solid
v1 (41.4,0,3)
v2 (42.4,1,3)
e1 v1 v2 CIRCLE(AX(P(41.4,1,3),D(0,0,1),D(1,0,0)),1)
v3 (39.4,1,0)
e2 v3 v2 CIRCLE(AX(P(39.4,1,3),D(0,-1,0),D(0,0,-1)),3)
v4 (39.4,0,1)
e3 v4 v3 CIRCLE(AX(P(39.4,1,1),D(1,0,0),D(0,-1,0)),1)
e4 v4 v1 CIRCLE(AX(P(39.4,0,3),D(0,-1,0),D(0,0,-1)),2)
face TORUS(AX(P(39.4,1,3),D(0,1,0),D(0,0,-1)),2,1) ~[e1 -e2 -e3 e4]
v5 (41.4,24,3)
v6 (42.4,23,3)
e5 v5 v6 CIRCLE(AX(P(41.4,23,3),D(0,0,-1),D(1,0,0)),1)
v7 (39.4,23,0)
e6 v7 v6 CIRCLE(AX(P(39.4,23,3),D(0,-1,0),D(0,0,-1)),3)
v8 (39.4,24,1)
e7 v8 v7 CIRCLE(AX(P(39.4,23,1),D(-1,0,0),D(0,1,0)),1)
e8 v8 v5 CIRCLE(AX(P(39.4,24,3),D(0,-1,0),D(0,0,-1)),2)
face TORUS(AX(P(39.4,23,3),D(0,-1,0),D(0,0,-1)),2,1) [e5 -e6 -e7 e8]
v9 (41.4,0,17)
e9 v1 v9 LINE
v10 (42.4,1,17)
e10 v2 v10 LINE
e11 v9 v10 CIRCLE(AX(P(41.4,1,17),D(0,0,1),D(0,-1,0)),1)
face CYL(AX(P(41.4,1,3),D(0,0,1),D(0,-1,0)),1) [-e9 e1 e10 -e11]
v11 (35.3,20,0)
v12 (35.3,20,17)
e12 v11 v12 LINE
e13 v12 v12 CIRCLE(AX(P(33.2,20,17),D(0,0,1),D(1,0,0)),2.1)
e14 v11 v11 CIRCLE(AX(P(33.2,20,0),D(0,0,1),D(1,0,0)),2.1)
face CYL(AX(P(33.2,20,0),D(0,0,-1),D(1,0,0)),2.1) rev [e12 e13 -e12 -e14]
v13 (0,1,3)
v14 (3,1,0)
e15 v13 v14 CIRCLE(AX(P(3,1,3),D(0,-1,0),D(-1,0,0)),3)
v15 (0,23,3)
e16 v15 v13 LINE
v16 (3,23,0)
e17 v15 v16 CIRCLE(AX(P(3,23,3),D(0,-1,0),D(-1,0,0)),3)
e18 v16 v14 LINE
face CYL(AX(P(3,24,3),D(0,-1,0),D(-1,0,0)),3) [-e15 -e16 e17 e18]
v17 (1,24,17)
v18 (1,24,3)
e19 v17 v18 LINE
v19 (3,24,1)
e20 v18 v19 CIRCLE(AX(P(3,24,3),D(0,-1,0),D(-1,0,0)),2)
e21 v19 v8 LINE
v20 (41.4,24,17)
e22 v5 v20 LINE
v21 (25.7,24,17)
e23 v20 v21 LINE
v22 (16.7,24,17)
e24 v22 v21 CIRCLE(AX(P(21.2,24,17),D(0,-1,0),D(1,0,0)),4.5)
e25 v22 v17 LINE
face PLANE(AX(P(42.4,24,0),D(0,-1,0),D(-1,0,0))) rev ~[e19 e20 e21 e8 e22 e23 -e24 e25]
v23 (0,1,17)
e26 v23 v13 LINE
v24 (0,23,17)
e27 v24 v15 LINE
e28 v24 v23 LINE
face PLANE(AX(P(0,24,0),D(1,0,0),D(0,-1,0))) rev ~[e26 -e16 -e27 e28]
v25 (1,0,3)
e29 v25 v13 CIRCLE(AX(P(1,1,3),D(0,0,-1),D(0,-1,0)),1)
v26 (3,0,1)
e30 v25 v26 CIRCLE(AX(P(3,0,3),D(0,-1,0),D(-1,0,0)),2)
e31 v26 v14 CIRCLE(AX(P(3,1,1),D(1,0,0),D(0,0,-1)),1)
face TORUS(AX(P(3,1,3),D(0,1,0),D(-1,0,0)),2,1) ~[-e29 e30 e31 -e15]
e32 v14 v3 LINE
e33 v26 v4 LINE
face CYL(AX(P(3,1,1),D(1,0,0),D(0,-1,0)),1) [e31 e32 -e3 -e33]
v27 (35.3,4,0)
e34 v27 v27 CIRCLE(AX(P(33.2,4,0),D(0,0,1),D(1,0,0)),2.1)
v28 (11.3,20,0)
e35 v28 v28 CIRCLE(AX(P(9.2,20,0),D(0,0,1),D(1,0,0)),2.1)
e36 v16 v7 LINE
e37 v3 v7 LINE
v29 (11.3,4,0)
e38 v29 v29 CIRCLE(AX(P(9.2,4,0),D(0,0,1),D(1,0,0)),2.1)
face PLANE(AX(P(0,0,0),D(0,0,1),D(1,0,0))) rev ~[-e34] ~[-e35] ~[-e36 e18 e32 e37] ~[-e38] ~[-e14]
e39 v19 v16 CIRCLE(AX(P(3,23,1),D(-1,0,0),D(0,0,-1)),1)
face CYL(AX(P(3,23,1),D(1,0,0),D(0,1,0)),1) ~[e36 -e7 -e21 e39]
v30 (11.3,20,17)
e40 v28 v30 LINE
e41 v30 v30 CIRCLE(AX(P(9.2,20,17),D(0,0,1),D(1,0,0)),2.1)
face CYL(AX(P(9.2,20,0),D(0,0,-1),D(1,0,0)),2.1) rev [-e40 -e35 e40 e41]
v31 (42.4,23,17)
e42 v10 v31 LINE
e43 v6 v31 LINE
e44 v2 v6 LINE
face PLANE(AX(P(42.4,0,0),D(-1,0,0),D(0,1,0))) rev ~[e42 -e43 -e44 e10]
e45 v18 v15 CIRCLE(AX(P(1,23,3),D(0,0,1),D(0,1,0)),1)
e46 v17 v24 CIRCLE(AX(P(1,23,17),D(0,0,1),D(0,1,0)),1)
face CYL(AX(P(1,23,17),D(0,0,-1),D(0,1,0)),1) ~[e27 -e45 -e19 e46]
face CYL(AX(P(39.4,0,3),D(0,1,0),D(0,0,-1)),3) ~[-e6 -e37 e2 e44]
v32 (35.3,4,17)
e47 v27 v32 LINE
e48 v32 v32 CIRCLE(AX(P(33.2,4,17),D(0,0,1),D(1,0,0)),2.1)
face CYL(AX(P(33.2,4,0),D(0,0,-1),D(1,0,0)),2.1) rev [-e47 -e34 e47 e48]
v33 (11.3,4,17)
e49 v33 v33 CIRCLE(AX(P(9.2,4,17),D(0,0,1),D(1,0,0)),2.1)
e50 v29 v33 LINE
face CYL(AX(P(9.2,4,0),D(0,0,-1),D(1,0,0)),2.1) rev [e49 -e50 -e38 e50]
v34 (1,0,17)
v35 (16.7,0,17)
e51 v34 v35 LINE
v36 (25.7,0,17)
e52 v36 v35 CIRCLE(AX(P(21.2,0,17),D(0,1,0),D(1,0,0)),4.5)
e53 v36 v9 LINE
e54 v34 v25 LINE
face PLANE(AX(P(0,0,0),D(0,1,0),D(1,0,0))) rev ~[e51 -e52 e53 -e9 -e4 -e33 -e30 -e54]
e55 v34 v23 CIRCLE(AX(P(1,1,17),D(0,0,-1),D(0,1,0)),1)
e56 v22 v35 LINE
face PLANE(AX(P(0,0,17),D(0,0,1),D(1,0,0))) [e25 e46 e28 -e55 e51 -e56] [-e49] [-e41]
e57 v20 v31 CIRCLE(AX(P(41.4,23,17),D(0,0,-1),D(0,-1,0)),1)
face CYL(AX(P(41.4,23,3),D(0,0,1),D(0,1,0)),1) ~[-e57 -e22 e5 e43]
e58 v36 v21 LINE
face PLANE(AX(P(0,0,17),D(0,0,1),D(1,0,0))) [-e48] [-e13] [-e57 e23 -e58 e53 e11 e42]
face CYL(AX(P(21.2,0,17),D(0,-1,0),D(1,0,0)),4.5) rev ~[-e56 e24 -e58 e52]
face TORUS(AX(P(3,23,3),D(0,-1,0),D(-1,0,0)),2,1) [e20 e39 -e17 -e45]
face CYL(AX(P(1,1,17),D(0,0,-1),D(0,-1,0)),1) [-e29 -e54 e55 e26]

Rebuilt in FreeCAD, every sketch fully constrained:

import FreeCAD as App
import Part
import Sketcher
from FreeCAD import Vector
Q = App.Units.Quantity


def edges_at(feature, points):
    """Names of the edges that pass closest to the given points."""
    edges = feature.Shape.Edges
    near = lambda p: min(range(len(edges)), key=lambda i: edges[i].distToShape(Part.Vertex(*p))[0])
    return sorted({f"Edge{near(p) + 1}" for p in points})

doc = App.newDocument("Part")
body = doc.addObject("PartDesign::Body", "Body")

# Sketch on XY plane
sketch1 = body.newObject("Sketcher::SketchObject", "Sketch")
sketch1.AttachmentSupport = (doc.getObject("XY_Plane"), [""])
sketch1.MapMode = "FlatFace"
sketch1.addGeometry(Part.LineSegment(Vector(0, 24, 0), Vector(0, 0, 0)), False)
sketch1.addGeometry(Part.LineSegment(Vector(0, 0, 0), Vector(42.4, 0, 0)), False)
sketch1.addGeometry(Part.LineSegment(Vector(42.4, 0, 0), Vector(42.4, 24, 0)), False)
sketch1.addGeometry(Part.LineSegment(Vector(42.4, 24, 0), Vector(0, 24, 0)), False)
sketch1.addGeometry(Part.Circle(Vector(9.2, 4, 0), Vector(0, 0, 1), 2.1), False)
sketch1.addGeometry(Part.Circle(Vector(33.2, 4, 0), Vector(0, 0, 1), 2.1), False)
sketch1.addGeometry(Part.Circle(Vector(9.2, 20, 0), Vector(0, 0, 1), 2.1), False)
sketch1.addGeometry(Part.Circle(Vector(33.2, 20, 0), Vector(0, 0, 1), 2.1), False)
sketch1.addConstraint(Sketcher.Constraint("Coincident", 0, 2, 1, 1))
sketch1.addConstraint(Sketcher.Constraint("Coincident", 1, 2, 2, 1))
sketch1.addConstraint(Sketcher.Constraint("Coincident", 2, 2, 3, 1))
sketch1.addConstraint(Sketcher.Constraint("Coincident", 3, 2, 0, 1))
sketch1.addConstraint(Sketcher.Constraint("Vertical", 0))
sketch1.addConstraint(Sketcher.Constraint("Horizontal", 1))
sketch1.addConstraint(Sketcher.Constraint("Vertical", 2))
sketch1.addConstraint(Sketcher.Constraint("Horizontal", 3))
sketch1.addConstraint(Sketcher.Constraint("Coincident", 0, 2, -1, 1))
sketch1.addConstraint(Sketcher.Constraint("Equal", 4, 5))
sketch1.addConstraint(Sketcher.Constraint("Equal", 5, 6))
sketch1.addConstraint(Sketcher.Constraint("Equal", 6, 7))
sketch1.addConstraint(Sketcher.Constraint("Horizontal", 4, 3, 5, 3))
sketch1.addConstraint(Sketcher.Constraint("Horizontal", 6, 3, 7, 3))
sketch1.addConstraint(Sketcher.Constraint("Vertical", 4, 3, 6, 3))
sketch1.addConstraint(Sketcher.Constraint("Vertical", 5, 3, 7, 3))
sketch1.addConstraint(Sketcher.Constraint("Diameter", 4, Q("4.2 mm")))
sketch1.addConstraint(Sketcher.Constraint("DistanceY", 0, 2, 0, 1, Q("24 mm")))
sketch1.addConstraint(Sketcher.Constraint("DistanceX", 1, 1, 1, 2, Q("42.4 mm")))
sketch1.addConstraint(Sketcher.Constraint("DistanceY", -1, 1, 4, 3, Q("4 mm")))
sketch1.addConstraint(Sketcher.Constraint("DistanceX", 4, 3, 5, 3, Q("24 mm")))
sketch1.addConstraint(Sketcher.Constraint("DistanceY", 7, 3, 2, 2, Q("4 mm")))
sketch1.addConstraint(Sketcher.Constraint("DistanceX", -1, 1, 4, 3, Q("9.2 mm")))
pad1 = body.newObject("PartDesign::Pad", "Pad")
pad1.Profile = sketch1
pad1.Length = 17

# Sketch on XZ plane
sketch2 = body.newObject("Sketcher::SketchObject", "Sketch001")
sketch2.AttachmentSupport = (doc.getObject("XZ_Plane"), [""])
sketch2.MapMode = "FlatFace"
sketch2.addGeometry(Part.Circle(Vector(21.2, 17, 0), Vector(0, 0, 1), 4.5), False)
sketch2.addConstraint(Sketcher.Constraint("Diameter", 0, Q("9 mm")))
sketch2.addConstraint(Sketcher.Constraint("DistanceX", -1, 1, 0, 3, Q("21.2 mm")))
sketch2.addConstraint(Sketcher.Constraint("DistanceY", -1, 1, 0, 3, Q("17 mm")))
pocket1 = body.newObject("PartDesign::Pocket", "Pocket")
pocket1.Profile = sketch2
pocket1.Type = "ThroughAll"
doc.recompute()

fillet = body.newObject("PartDesign::Fillet", "Fillet")
fillet.Base = (pocket1, edges_at(pocket1, [(42.4, 12, 0), (0, 12, 0)]))
fillet.Radius = 3
doc.recompute()

fillet2 = body.newObject("PartDesign::Fillet", "Fillet001")
fillet2.Base = (fillet, edges_at(fillet, [
    (41.521, 24, 0.879),
    (21.2, 24, 0),
    (42.4, 24, 10),
    (0.879, 24, 0.879),
    (0, 24, 10),
    (41.521, 0, 0.879),
    (21.2, 0, 0),
    (42.4, 0, 10),
    (0, 0, 10),
    (0.879, 0, 0.879),
]))
fillet2.Radius = 1

doc.recompute()
